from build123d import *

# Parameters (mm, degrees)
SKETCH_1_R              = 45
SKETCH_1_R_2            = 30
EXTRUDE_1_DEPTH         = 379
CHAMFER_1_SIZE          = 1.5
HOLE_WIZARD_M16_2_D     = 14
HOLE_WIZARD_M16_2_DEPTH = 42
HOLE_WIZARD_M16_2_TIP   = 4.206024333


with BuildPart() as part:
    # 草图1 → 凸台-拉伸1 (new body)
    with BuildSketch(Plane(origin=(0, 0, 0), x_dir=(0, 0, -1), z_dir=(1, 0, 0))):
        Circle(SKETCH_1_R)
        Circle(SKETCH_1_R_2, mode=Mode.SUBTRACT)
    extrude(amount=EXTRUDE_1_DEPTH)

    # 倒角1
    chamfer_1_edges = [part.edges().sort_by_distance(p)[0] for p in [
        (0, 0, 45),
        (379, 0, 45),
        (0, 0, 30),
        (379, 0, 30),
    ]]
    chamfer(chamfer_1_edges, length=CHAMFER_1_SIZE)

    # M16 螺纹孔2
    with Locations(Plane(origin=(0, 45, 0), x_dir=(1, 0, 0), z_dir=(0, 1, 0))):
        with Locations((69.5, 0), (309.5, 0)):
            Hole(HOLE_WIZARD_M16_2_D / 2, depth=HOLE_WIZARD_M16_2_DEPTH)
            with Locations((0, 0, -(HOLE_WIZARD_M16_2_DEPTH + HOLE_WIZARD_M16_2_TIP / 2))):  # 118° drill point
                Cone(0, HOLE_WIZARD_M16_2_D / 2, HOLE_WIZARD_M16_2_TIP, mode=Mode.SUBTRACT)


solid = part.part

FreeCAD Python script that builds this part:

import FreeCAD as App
import Part
import Sketcher


def edges_at(feature, points):
    """Names of the edges that pass closest to the given points."""
    edges = feature.Shape.Edges
    near = lambda p: min(range(len(edges)), key=lambda i: edges[i].distToShape(Part.Vertex(*p))[0])
    return sorted({f"Edge{near(p) + 1}" for p in points})

doc = App.newDocument("Part")
body = doc.addObject("PartDesign::Body", "Body")

# Sketch on YZ plane
sketch1 = doc.addObject("Sketcher::SketchObject", "Sketch")
body.addObject(sketch1)
sketch1.AttachmentSupport = (doc.YZ_Plane, [""])
sketch1.MapMode = "FlatFace"
sketch1.addGeometry([
    Part.Circle(App.Vector(0, 0, 0), App.Vector(0, 0, 1), 45),
    Part.Circle(App.Vector(0, 0, 0), App.Vector(0, 0, 1), 30),
], False)
sketch1.addConstraint([
    Sketcher.Constraint("Coincident", 0, 3, -1, 1),
    Sketcher.Constraint("Coincident", 1, 3, -1, 1),
    Sketcher.Constraint("Diameter", 0, 90.0),
    Sketcher.Constraint("Diameter", 1, 60.0),
])
pad1 = doc.addObject("PartDesign::Pad", "Pad")
body.addObject(pad1)
pad1.Profile = sketch1
pad1.Length = 379
doc.recompute()

chamfer = doc.addObject("PartDesign::Chamfer", "Chamfer")
body.addObject(chamfer)
chamfer.Base = (pad1, edges_at(pad1, [
    (0, 0, 45),
    (379, 0, 45),
    (0, 0, 30),
    (379, 0, 30),
]))
chamfer.Size = 1.5

# Sketch on XZ plane
sketch2 = doc.addObject("Sketcher::SketchObject", "Sketch001")
body.addObject(sketch2)
sketch2.AttachmentSupport = (doc.XZ_Plane, [""])
sketch2.MapMode = "FlatFace"
sketch2.AttachmentOffset = App.Placement(App.Vector(0, 0, -45), App.Rotation())
sketch2.addGeometry([
    Part.Circle(App.Vector(70, 0, 0), App.Vector(0, 0, 1), 7),
    Part.Circle(App.Vector(310, 0, 0), App.Vector(0, 0, 1), 7),
], False)
sketch2.addConstraint([
    Sketcher.Constraint("Equal", 0, 1),
    Sketcher.Constraint("PointOnObject", 0, 3, -1),
    Sketcher.Constraint("PointOnObject", 1, 3, -1),
    Sketcher.Constraint("Diameter", 0, 14.0),
    Sketcher.Constraint("DistanceX", 0, 3, 1, 3, 240.0),
    Sketcher.Constraint("DistanceX", -1, 1, 0, 3, 69.5),
])
doc.recompute()
hole = doc.addObject("PartDesign::Hole", "Hole")
body.addObject(hole)
hole.Profile = sketch2
hole.ThreadType = "None"
hole.Diameter = 14
hole.DepthType = "Dimension"
hole.Depth = 42
hole.DrillPoint = "Angled"
hole.DrillPointAngle = 118
hole.Reversed = True

doc.recompute()
